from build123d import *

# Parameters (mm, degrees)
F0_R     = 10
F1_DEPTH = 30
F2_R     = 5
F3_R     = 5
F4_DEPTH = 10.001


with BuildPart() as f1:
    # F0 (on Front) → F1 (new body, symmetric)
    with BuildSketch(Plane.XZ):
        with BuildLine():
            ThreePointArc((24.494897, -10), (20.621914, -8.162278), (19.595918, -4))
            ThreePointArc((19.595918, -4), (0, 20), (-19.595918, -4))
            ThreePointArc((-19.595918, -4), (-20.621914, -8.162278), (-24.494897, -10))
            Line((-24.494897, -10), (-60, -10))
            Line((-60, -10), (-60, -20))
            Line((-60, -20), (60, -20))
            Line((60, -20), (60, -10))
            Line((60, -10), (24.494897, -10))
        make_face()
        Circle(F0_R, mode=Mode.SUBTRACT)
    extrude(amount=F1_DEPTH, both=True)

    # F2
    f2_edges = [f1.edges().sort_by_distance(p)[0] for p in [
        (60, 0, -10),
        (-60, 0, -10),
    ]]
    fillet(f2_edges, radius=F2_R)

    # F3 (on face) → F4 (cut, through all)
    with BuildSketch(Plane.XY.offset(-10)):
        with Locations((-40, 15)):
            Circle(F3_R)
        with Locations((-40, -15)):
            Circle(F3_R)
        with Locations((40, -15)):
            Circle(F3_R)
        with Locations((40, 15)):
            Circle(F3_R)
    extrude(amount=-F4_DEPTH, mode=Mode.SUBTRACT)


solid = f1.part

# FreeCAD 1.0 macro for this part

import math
import FreeCAD as App
import Part
import Sketcher
from FreeCAD import Vector


def edges_at(feature, points):
    """Names of the edges that pass closest to the given points."""
    edges = feature.Shape.Edges
    near = lambda p: min(range(len(edges)), key=lambda i: edges[i].distToShape(Part.Vertex(*p))[0])
    return sorted({f"Edge{near(p) + 1}" for p in points})

doc = App.newDocument("Part")
body = doc.addObject("PartDesign::Body", "Body")

# Sketch on XZ plane
sketch1 = body.newObject("Sketcher::SketchObject", "Sketch")
sketch1.AttachmentSupport = (doc.getObject("XZ_Plane"), [""])
sketch1.MapMode = "FlatFace"
sketch1.addGeometry([
    Part.ArcOfCircle(Part.Circle(Vector(24.494897, -5.000001, 0), Vector(0, 0, 1), 4.999999), math.radians(168.463033), math.radians(270.000002)),  # 0
    Part.ArcOfCircle(Part.Circle(Vector(0, 0, 0), Vector(0, 0, 1), 20), math.radians(-11.536959), math.radians(191.536959)),  # 1
    Part.ArcOfCircle(Part.Circle(Vector(-24.494897, -5.000001, 0), Vector(0, 0, 1), 4.999999), math.radians(-90.000002), math.radians(11.536967)),  # 2
    Part.LineSegment(Vector(-24.494897, -10, 0), Vector(-60, -10, 0)),  # 3
    Part.LineSegment(Vector(-60, -10, 0), Vector(-60, -20, 0)),  # 4
    Part.LineSegment(Vector(-60, -20, 0), Vector(60, -20, 0)),  # 5
    Part.LineSegment(Vector(60, -20, 0), Vector(60, -10, 0)),  # 6
    Part.LineSegment(Vector(60, -10, 0), Vector(24.494897, -10, 0)),  # 7
    Part.Circle(Vector(0, 0, 0), Vector(0, 0, 1), 10),  # 8
], False)
sketch1.addConstraint([
    Sketcher.Constraint("Tangent", 0, 1, 1, 1),
    Sketcher.Constraint("Tangent", 1, 2, 2, 2),
    Sketcher.Constraint("Tangent", 2, 1, 3, 1),
    Sketcher.Constraint("Coincident", 3, 2, 4, 1),
    Sketcher.Constraint("Coincident", 4, 2, 5, 1),
    Sketcher.Constraint("Coincident", 5, 2, 6, 1),
    Sketcher.Constraint("Coincident", 6, 2, 7, 1),
    Sketcher.Constraint("Tangent", 7, 2, 0, 2),
    Sketcher.Constraint("Horizontal", 3),
    Sketcher.Constraint("Vertical", 4),
    Sketcher.Constraint("Horizontal", 5),
    Sketcher.Constraint("Vertical", 6),
    Sketcher.Constraint("Horizontal", 7),
    Sketcher.Constraint("Coincident", 1, 3, -1, 1),
    Sketcher.Constraint("Coincident", 8, 3, -1, 1),
    Sketcher.Constraint("Equal", 0, 2),
    Sketcher.Constraint("Symmetric", 3, 2, 6, 2, -2),
    Sketcher.Constraint("Diameter", 8, 20.0),
    Sketcher.Constraint("Radius", 0, 4.999999),
    Sketcher.Constraint("Radius", 1, 20.0),
    Sketcher.Constraint("DistanceX", 5, 1, 5, 2, 120.0),
    Sketcher.Constraint("DistanceY", 4, 2, 4, 1, 10.0),
    Sketcher.Constraint("DistanceY", 0, 3, -1, 1, 5.000001),
])
pad1 = body.newObject("PartDesign::Pad", "Pad")
pad1.Profile = sketch1
pad1.Length = 60
pad1.Midplane = True
doc.recompute()

fillet = body.newObject("PartDesign::Fillet", "Fillet")
fillet.Base = (pad1, edges_at(pad1, [(60, 0, -10), (-60, 0, -10)]))
fillet.Radius = 5

# Sketch on XY plane
sketch2 = body.newObject("Sketcher::SketchObject", "Sketch001")
sketch2.AttachmentSupport = (doc.getObject("XY_Plane"), [""])
sketch2.MapMode = "FlatFace"
sketch2.AttachmentOffset = App.Placement(Vector(0, 0, -10), App.Rotation())
sketch2.addGeometry([
    Part.Circle(Vector(-40, 15, 0), Vector(0, 0, 1), 5),
    Part.Circle(Vector(-40, -15, 0), Vector(0, 0, 1), 5),
    Part.Circle(Vector(40, -15, 0), Vector(0, 0, 1), 5),
    Part.Circle(Vector(40, 15, 0), Vector(0, 0, 1), 5),
], False)
sketch2.addConstraint([
    Sketcher.Constraint("Equal", 0, 1),
    Sketcher.Constraint("Equal", 1, 2),
    Sketcher.Constraint("Equal", 2, 3),
    Sketcher.Constraint("Symmetric", 0, 3, 2, 3, -1, 1),
    Sketcher.Constraint("Symmetric", 1, 3, 3, 3, -1, 1),
    Sketcher.Constraint("Symmetric", 1, 3, 2, 3, -2),
    Sketcher.Constraint("Diameter", 0, 10.0),
    Sketcher.Constraint("DistanceX", 0, 3, -1, 1, 40.0),
    Sketcher.Constraint("DistanceY", -1, 1, 0, 3, 15.0),
])
pocket1 = body.newObject("PartDesign::Pocket", "Pocket")
pocket1.Profile = sketch2
pocket1.Type = "ThroughAll"

doc.recompute()
